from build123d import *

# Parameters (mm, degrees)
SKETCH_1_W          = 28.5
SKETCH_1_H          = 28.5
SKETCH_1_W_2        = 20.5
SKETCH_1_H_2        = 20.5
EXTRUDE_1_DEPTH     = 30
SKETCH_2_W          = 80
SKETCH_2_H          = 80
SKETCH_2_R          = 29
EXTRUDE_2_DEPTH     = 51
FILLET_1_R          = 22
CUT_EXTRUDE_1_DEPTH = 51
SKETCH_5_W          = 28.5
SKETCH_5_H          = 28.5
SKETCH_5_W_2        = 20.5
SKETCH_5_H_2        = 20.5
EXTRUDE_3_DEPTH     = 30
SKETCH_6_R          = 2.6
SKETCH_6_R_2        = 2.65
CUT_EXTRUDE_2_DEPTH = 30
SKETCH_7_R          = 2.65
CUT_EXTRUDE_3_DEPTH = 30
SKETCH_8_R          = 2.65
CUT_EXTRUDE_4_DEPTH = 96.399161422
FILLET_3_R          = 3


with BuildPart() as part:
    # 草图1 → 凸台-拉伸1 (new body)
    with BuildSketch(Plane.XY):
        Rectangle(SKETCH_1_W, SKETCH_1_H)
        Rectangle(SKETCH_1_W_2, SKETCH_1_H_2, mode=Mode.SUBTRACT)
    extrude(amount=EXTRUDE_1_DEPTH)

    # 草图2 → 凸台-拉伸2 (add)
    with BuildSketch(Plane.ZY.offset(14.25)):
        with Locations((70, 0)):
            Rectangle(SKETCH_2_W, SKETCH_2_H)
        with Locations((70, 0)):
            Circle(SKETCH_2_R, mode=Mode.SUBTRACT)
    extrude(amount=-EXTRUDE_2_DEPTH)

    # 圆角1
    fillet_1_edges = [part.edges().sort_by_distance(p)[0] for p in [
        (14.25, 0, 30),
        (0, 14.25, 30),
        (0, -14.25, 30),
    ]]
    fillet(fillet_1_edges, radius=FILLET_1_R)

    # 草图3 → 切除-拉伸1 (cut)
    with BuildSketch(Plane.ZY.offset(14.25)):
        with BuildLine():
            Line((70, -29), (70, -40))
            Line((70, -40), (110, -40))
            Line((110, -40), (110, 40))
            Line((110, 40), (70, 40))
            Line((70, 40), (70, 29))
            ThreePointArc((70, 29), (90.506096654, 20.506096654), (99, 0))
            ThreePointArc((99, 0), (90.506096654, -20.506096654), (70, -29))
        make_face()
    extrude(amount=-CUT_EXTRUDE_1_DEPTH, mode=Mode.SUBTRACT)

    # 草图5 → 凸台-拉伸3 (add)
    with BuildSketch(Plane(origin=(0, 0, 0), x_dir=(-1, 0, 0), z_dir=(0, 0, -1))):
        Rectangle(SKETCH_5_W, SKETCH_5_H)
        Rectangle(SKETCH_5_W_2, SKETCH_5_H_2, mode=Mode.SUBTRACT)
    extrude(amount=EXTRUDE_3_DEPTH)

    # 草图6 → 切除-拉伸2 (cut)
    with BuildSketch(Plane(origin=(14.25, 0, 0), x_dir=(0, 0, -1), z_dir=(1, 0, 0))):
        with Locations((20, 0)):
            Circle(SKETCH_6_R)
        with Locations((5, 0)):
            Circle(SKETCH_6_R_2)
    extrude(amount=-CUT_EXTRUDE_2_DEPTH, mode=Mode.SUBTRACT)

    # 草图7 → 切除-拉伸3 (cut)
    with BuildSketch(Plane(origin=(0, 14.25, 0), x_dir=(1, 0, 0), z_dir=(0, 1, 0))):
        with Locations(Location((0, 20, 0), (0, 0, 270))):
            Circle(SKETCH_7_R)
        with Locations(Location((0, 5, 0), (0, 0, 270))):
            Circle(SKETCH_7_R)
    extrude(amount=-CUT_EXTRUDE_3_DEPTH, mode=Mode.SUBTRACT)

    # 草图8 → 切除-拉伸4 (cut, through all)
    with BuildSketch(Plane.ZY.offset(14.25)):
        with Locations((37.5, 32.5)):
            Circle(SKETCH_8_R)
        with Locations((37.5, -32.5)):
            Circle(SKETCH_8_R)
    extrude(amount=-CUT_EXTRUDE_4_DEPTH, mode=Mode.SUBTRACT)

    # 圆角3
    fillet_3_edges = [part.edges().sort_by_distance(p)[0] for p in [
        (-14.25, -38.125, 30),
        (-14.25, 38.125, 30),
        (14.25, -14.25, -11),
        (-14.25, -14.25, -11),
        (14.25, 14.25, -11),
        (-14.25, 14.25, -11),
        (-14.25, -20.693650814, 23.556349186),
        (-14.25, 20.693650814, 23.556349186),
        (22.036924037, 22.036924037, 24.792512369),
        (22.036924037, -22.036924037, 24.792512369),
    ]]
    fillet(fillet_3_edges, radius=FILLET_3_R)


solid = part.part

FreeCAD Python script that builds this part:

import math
import FreeCAD as App
import Part
import Sketcher

V = App.Vector


def edges_at(feature, points):
    """Names of the edges that pass closest to the given points."""
    edges = feature.Shape.Edges
    near = lambda p: min(range(len(edges)), key=lambda i: edges[i].distToShape(Part.Vertex(*p))[0])
    return sorted({f"Edge{near(p) + 1}" for p in points})


def add_polygon(sketch, points):
    """Adds a closed chain of lines whose ends are joined by coincident constraints."""
    first, n = sketch.GeometryCount, len(points)
    for a, b in zip(points, points[1:] + points[:1]):
        sketch.addGeometry(Part.LineSegment(App.Vector(*a, 0), App.Vector(*b, 0)), False)
    for i in range(n):
        sketch.addConstraint(Sketcher.Constraint("Coincident", first + i, 2, first + (i + 1) % n, 1))

doc = App.newDocument("Part")
body = doc.addObject("PartDesign::Body", "Body")

# Sketch on XY plane
sketch1 = body.newObject("Sketcher::SketchObject", "Sketch")
sketch1.AttachmentSupport = (doc.getObject("XY_Plane"), [""])
sketch1.MapMode = "FlatFace"
add_polygon(sketch1, [(-14, 14), (-14, -14), (14, -14), (14, 14)])  # lines 0-3
add_polygon(sketch1, [(10, -10), (-10, -10), (-10, 10), (10, 10)])  # lines 4-7
sketch1.addConstraint(Sketcher.Constraint("Vertical", 0))
sketch1.addConstraint(Sketcher.Constraint("Horizontal", 1))
sketch1.addConstraint(Sketcher.Constraint("Vertical", 2))
sketch1.addConstraint(Sketcher.Constraint("Horizontal", 3))
sketch1.addConstraint(Sketcher.Constraint("Horizontal", 4))
sketch1.addConstraint(Sketcher.Constraint("Vertical", 5))
sketch1.addConstraint(Sketcher.Constraint("Horizontal", 6))
sketch1.addConstraint(Sketcher.Constraint("Vertical", 7))
sketch1.addConstraint(Sketcher.Constraint("Symmetric", 0, 2, 2, 2, -1, 1))
sketch1.addConstraint(Sketcher.Constraint("Symmetric", 4, 2, 6, 2, -1, 1))
sketch1.addConstraint(Sketcher.Constraint("Equal", 3, 0))
sketch1.addConstraint(Sketcher.Constraint("Equal", 6, 5))
sketch1.addConstraint(Sketcher.Constraint("DistanceX", 1, 1, 1, 2, 28.5))
sketch1.addConstraint(Sketcher.Constraint("DistanceX", 4, 2, 4, 1, 20.5))
pad1 = body.newObject("PartDesign::Pad", "Pad")
pad1.Profile = sketch1
pad1.Length = 30

# Sketch on YZ plane
sketch2 = body.newObject("Sketcher::SketchObject", "Sketch001")
sketch2.AttachmentSupport = (doc.getObject("YZ_Plane"), [""])
sketch2.MapMode = "FlatFace"
sketch2.AttachmentOffset = App.Placement(V(0, 0, -14.25), App.Rotation())
add_polygon(sketch2, [(40, 30), (-40, 30), (-40, 110), (40, 110)])  # lines 0-3
sketch2.addGeometry(Part.Circle(V(0, 70, 0), V(0, 0, 1), 29), False)  # 4
sketch2.addConstraint(Sketcher.Constraint("Horizontal", 0))
sketch2.addConstraint(Sketcher.Constraint("Vertical", 1))
sketch2.addConstraint(Sketcher.Constraint("Horizontal", 2))
sketch2.addConstraint(Sketcher.Constraint("Vertical", 3))
sketch2.addConstraint(Sketcher.Constraint("PointOnObject", 4, 3, -2))
sketch2.addConstraint(Sketcher.Constraint("Equal", 2, 1))
sketch2.addConstraint(Sketcher.Constraint("Diameter", 4, 58.0))
sketch2.addConstraint(Sketcher.Constraint("DistanceX", 0, 2, 0, 1, 80.0))
sketch2.addConstraint(Sketcher.Constraint("DistanceY", -1, 1, 4, 3, 70.0))
sketch2.addConstraint(Sketcher.Constraint("DistanceX", 0, 2, -1, 1, 40.0))
sketch2.addConstraint(Sketcher.Constraint("DistanceY", -1, 1, 0, 2, 30.0))
pad2 = body.newObject("PartDesign::Pad", "Pad001")
pad2.Profile = sketch2
pad2.Length = 51
doc.recompute()

fillet = body.newObject("PartDesign::Fillet", "Fillet")
fillet.Base = (pad2, edges_at(pad2, [(14.25, 0, 30), (0, 14.25, 30), (0, -14.25, 30)]))
fillet.Radius = 22

# Sketch on YZ plane
sketch3 = body.newObject("Sketcher::SketchObject", "Sketch002")
sketch3.AttachmentSupport = (doc.getObject("YZ_Plane"), [""])
sketch3.MapMode = "FlatFace"
sketch3.AttachmentOffset = App.Placement(V(0, 0, -14.25), App.Rotation())
sketch3.addGeometry(Part.LineSegment(V(-29, 70, 0), V(-40, 70, 0)), False)
sketch3.addGeometry(Part.LineSegment(V(-40, 70, 0), V(-40, 110, 0)), False)
sketch3.addGeometry(Part.LineSegment(V(-40, 110, 0), V(40, 110, 0)), False)
sketch3.addGeometry(Part.LineSegment(V(40, 110, 0), V(40, 70, 0)), False)
sketch3.addGeometry(Part.LineSegment(V(40, 70, 0), V(29, 70, 0)), False)
sketch3.addGeometry(Part.ArcOfCircle(Part.Circle(V(0, 70, 0), V(0, 0, 1), 29), math.radians(0), math.radians(90)), False)
sketch3.addGeometry(Part.ArcOfCircle(Part.Circle(V(0, 70, 0), V(0, 0, 1), 29), math.radians(90), math.radians(180)), False)
sketch3.addConstraint(Sketcher.Constraint("Coincident", 0, 2, 1, 1))
sketch3.addConstraint(Sketcher.Constraint("Coincident", 1, 2, 2, 1))
sketch3.addConstraint(Sketcher.Constraint("Coincident", 2, 2, 3, 1))
sketch3.addConstraint(Sketcher.Constraint("Coincident", 3, 2, 4, 1))
sketch3.addConstraint(Sketcher.Constraint("Coincident", 4, 2, 5, 1))
sketch3.addConstraint(Sketcher.Constraint("Tangent", 5, 2, 6, 1))
sketch3.addConstraint(Sketcher.Constraint("Coincident", 6, 2, 0, 1))
sketch3.addConstraint(Sketcher.Constraint("Horizontal", 0))
sketch3.addConstraint(Sketcher.Constraint("Vertical", 1))
sketch3.addConstraint(Sketcher.Constraint("Horizontal", 2))
sketch3.addConstraint(Sketcher.Constraint("Vertical", 3))
sketch3.addConstraint(Sketcher.Constraint("Horizontal", 4))
sketch3.addConstraint(Sketcher.Constraint("Equal", 5, 6))
sketch3.addConstraint(Sketcher.Constraint("Symmetric", 0, 2, 3, 2, -2))
sketch3.addConstraint(Sketcher.Constraint("PointOnObject", 5, 3, -2))
sketch3.addConstraint(Sketcher.Constraint("PointOnObject", 5, 2, -2))
sketch3.addConstraint(Sketcher.Constraint("Horizontal", 6, 3, 0, 2))
sketch3.addConstraint(Sketcher.Constraint("Radius", 5, 29.0))
sketch3.addConstraint(Sketcher.Constraint("DistanceX", 0, 2, 0, 1, 11.0))
sketch3.addConstraint(Sketcher.Constraint("DistanceY", 1, 1, 1, 2, 40.0))
sketch3.addConstraint(Sketcher.Constraint("DistanceY", -1, 1, 5, 3, 70.0))
pocket1 = body.newObject("PartDesign::Pocket", "Pocket")
pocket1.Profile = sketch3
pocket1.Length = 51
pocket1.Reversed = True

# Sketch on XY plane
sketch4 = body.newObject("Sketcher::SketchObject", "Sketch003")
sketch4.AttachmentSupport = (doc.getObject("XY_Plane"), [""])
sketch4.MapMode = "FlatFace"
add_polygon(sketch4, [(14, 14), (14, -14), (-14, -14), (-14, 14)])  # lines 0-3
add_polygon(sketch4, [(-10, -10), (10, -10), (10, 10), (-10, 10)])  # lines 4-7
sketch4.addConstraint(Sketcher.Constraint("Vertical", 0))
sketch4.addConstraint(Sketcher.Constraint("Horizontal", 1))
sketch4.addConstraint(Sketcher.Constraint("Vertical", 2))
sketch4.addConstraint(Sketcher.Constraint("Horizontal", 3))
sketch4.addConstraint(Sketcher.Constraint("Horizontal", 4))
sketch4.addConstraint(Sketcher.Constraint("Vertical", 5))
sketch4.addConstraint(Sketcher.Constraint("Horizontal", 6))
sketch4.addConstraint(Sketcher.Constraint("Vertical", 7))
sketch4.addConstraint(Sketcher.Constraint("Symmetric", 0, 2, 2, 2, -1, 1))
sketch4.addConstraint(Sketcher.Constraint("Symmetric", 4, 2, 6, 2, -1, 1))
sketch4.addConstraint(Sketcher.Constraint("Equal", 3, 0))
sketch4.addConstraint(Sketcher.Constraint("Equal", 6, 5))
sketch4.addConstraint(Sketcher.Constraint("DistanceX", 1, 2, 1, 1, 28.5))
sketch4.addConstraint(Sketcher.Constraint("DistanceX", 4, 1, 4, 2, 20.5))
pad3 = body.newObject("PartDesign::Pad", "Pad002")
pad3.Profile = sketch4
pad3.Length = 30
pad3.Reversed = True

# Sketch on YZ plane
sketch5 = body.newObject("Sketcher::SketchObject", "Sketch004")
sketch5.AttachmentSupport = (doc.getObject("YZ_Plane"), [""])
sketch5.MapMode = "FlatFace"
sketch5.AttachmentOffset = App.Placement(V(0, 0, 14.25), App.Rotation())
sketch5.addGeometry(Part.Circle(V(0, -20, 0), V(0, 0, 1), 2.6), False)
sketch5.addGeometry(Part.Circle(V(0, -5, 0), V(0, 0, 1), 2.6), False)
sketch5.addConstraint(Sketcher.Constraint("PointOnObject", 0, 3, -2))
sketch5.addConstraint(Sketcher.Constraint("PointOnObject", 1, 3, -2))
sketch5.addConstraint(Sketcher.Constraint("Diameter", 0, 5.2))
sketch5.addConstraint(Sketcher.Constraint("Diameter", 1, 5.3))
sketch5.addConstraint(Sketcher.Constraint("DistanceY", 0, 3, -1, 1, 20.0))
sketch5.addConstraint(Sketcher.Constraint("DistanceY", 1, 3, -1, 1, 5.0))
pocket2 = body.newObject("PartDesign::Pocket", "Pocket001")
pocket2.Profile = sketch5
pocket2.Length = 30

# Sketch on XZ plane
sketch6 = body.newObject("Sketcher::SketchObject", "Sketch005")
sketch6.AttachmentSupport = (doc.getObject("XZ_Plane"), [""])
sketch6.MapMode = "FlatFace"
sketch6.AttachmentOffset = App.Placement(V(0, 0, -14.25), App.Rotation())
sketch6.addGeometry(Part.Circle(V(0, -20, 0), V(0, 0, 1), 2.6), False)
sketch6.addGeometry(Part.Circle(V(0, -5, 0), V(0, 0, 1), 2.6), False)
sketch6.addConstraint(Sketcher.Constraint("Equal", 0, 1))
sketch6.addConstraint(Sketcher.Constraint("PointOnObject", 0, 3, -2))
sketch6.addConstraint(Sketcher.Constraint("PointOnObject", 1, 3, -2))
sketch6.addConstraint(Sketcher.Constraint("Diameter", 0, 5.3))
sketch6.addConstraint(Sketcher.Constraint("DistanceY", 0, 3, -1, 1, 20.0))
sketch6.addConstraint(Sketcher.Constraint("DistanceY", 1, 3, -1, 1, 5.0))
pocket3 = body.newObject("PartDesign::Pocket", "Pocket002")
pocket3.Profile = sketch6
pocket3.Length = 30
pocket3.Reversed = True

# Sketch on YZ plane
sketch7 = body.newObject("Sketcher::SketchObject", "Sketch006")
sketch7.AttachmentSupport = (doc.getObject("YZ_Plane"), [""])
sketch7.MapMode = "FlatFace"
sketch7.AttachmentOffset = App.Placement(V(0, 0, -14.25), App.Rotation())
sketch7.addGeometry(Part.Circle(V(32.5, 37.5, 0), V(0, 0, 1), 2.6), False)
sketch7.addGeometry(Part.Circle(V(-32.5, 37.5, 0), V(0, 0, 1), 2.6), False)
sketch7.addConstraint(Sketcher.Constraint("Equal", 0, 1))
sketch7.addConstraint(Sketcher.Constraint("Symmetric", 0, 3, 1, 3, -2))
sketch7.addConstraint(Sketcher.Constraint("Diameter", 0, 5.3))
sketch7.addConstraint(Sketcher.Constraint("DistanceX", 1, 3, 0, 3, 65.0))
sketch7.addConstraint(Sketcher.Constraint("DistanceY", -1, 1, 0, 3, 37.5))
pocket4 = body.newObject("PartDesign::Pocket", "Pocket003")
pocket4.Profile = sketch7
pocket4.Type = "ThroughAll"
pocket4.Reversed = True
doc.recompute()

fillet2 = body.newObject("PartDesign::Fillet", "Fillet001")
fillet2.Base = (pocket4, edges_at(pocket4, [
    (-14.25, -38.125, 30),
    (-14.25, 38.125, 30),
    (14.25, -14.25, -11),
    (-14.25, -14.25, -11),
    (14.25, 14.25, -11),
    (-14.25, 14.25, -11),
    (-14.25, -20.694, 23.556),
    (-14.25, 20.694, 23.556),
    (22.037, 22.037, 24.793),
    (22.037, -22.037, 24.793),
]))
fillet2.Radius = 3

doc.recompute()
